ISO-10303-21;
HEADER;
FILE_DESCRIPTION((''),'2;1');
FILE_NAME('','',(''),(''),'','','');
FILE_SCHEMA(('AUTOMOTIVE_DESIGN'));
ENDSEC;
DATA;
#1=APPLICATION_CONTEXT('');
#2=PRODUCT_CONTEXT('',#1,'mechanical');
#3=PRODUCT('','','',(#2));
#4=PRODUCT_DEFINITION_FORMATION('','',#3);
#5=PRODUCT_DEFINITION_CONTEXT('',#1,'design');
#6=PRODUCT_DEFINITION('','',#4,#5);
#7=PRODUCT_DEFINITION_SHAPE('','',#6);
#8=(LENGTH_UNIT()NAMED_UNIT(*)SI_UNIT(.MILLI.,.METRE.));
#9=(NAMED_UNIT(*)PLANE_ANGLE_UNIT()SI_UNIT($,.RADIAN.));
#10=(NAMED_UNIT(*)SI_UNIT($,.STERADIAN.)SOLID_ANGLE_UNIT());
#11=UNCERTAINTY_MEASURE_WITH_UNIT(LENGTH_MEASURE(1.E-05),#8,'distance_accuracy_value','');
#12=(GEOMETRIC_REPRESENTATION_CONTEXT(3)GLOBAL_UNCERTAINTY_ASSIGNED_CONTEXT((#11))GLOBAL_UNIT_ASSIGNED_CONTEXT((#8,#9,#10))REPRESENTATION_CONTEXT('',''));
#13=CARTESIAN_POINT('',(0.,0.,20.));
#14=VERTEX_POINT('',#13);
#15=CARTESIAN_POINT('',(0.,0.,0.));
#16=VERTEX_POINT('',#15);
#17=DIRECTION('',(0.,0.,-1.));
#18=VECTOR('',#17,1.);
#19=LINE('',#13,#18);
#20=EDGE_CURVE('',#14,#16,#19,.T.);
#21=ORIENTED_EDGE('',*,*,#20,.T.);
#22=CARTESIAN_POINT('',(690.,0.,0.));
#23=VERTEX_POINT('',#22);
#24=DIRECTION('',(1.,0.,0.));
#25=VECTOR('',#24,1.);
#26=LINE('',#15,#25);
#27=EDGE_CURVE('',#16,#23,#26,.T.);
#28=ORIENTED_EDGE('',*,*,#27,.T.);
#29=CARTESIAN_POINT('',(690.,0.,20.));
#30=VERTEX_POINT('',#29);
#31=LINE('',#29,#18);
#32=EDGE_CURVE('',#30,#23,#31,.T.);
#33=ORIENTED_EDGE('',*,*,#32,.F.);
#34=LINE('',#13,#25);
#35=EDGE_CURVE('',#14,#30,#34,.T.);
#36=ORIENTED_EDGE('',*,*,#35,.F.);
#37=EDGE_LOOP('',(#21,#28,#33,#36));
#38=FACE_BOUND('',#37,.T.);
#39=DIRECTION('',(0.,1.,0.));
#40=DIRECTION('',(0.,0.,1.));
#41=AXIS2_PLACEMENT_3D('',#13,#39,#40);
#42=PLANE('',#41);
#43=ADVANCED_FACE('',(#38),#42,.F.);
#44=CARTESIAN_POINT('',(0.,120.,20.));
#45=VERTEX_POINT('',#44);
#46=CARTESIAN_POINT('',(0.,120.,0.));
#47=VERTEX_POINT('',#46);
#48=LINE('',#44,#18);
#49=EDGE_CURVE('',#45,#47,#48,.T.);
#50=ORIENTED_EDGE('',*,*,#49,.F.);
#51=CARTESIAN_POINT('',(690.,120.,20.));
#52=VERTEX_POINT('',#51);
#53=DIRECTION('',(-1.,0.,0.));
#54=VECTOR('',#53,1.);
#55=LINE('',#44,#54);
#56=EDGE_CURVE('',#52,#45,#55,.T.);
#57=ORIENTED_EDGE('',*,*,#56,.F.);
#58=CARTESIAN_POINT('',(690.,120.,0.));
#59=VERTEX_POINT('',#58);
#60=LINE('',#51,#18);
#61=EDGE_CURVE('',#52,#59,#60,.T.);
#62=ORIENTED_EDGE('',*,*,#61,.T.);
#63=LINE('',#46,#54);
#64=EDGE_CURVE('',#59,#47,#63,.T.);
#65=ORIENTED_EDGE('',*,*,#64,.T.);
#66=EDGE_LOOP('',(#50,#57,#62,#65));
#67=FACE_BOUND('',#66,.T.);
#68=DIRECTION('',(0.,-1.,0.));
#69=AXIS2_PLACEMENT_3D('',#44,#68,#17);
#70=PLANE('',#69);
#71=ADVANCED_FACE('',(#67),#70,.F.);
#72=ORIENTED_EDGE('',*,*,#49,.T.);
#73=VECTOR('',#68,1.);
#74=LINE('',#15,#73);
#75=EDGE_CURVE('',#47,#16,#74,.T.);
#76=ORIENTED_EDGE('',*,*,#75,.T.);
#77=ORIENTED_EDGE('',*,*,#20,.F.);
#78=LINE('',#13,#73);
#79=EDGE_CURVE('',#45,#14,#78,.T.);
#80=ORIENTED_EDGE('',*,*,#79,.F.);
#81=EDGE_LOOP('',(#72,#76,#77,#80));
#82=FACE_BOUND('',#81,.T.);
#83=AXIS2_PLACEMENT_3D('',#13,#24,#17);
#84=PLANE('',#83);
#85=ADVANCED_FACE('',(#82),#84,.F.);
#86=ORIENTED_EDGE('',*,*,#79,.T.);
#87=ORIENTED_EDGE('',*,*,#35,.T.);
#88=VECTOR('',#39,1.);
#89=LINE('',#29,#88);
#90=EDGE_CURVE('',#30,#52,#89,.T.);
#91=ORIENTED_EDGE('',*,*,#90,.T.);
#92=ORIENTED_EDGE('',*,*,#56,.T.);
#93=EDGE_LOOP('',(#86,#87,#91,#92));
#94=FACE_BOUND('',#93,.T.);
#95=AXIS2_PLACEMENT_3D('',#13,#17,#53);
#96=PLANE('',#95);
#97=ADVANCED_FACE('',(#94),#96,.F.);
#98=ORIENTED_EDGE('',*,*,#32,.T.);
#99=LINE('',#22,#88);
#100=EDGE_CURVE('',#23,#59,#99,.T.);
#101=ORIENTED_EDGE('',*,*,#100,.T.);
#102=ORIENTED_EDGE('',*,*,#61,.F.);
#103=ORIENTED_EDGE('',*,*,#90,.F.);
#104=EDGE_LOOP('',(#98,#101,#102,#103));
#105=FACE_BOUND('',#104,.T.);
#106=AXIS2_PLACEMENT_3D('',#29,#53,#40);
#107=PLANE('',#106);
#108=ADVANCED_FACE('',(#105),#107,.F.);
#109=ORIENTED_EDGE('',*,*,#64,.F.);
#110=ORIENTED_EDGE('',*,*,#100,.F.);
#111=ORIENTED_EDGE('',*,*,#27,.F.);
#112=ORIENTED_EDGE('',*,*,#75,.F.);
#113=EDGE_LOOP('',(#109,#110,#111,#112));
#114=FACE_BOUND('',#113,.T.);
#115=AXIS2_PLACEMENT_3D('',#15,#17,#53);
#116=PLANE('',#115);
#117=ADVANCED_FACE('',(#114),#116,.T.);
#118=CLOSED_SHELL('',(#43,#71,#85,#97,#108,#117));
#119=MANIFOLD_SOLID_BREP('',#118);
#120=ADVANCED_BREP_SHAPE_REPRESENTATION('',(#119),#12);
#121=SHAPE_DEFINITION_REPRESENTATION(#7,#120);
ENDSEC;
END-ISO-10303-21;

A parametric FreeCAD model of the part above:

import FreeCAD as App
import Part
import Sketcher

V = App.Vector
Q = App.Units.Quantity

doc = App.newDocument("Part")
params = doc.addObject("Spreadsheet::Sheet", "Params")
for row, (alias, value) in enumerate([
    ("sketch1_width", "690 mm"),
    ("sketch1_height", "120 mm"),
    ("pad1_length", "20 mm"),
], start=1):
    params.set(f"A{row}", alias)
    params.set(f"B{row}", "=" + value)
    params.setAlias(f"B{row}", alias)

body = doc.addObject("PartDesign::Body", "Body")

sketch1 = body.newObject("Sketcher::SketchObject", "Sketch")
sketch1.AttachmentSupport = (doc.getObject("XY_Plane"), [""])
sketch1.MapMode = "FlatFace"
sketch1.addGeometry([
    Part.LineSegment(V(0, 120, 0), V(0, 0, 0)),
    Part.LineSegment(V(0, 0, 0), V(690, 0, 0)),
    Part.LineSegment(V(690, 0, 0), V(690, 120, 0)),
    Part.LineSegment(V(690, 120, 0), V(0, 120, 0)),
], False)
sketch1.addConstraint([
    Sketcher.Constraint("Coincident", 0, 2, 1, 1),
    Sketcher.Constraint("Coincident", 1, 2, 2, 1),
    Sketcher.Constraint("Coincident", 2, 2, 3, 1),
    Sketcher.Constraint("Coincident", 3, 2, 0, 1),
    Sketcher.Constraint("Vertical", 0),
    Sketcher.Constraint("Horizontal", 1),
    Sketcher.Constraint("Vertical", 2),
    Sketcher.Constraint("Horizontal", 3),
    Sketcher.Constraint("Coincident", 0, 2, -1, 1),
    Sketcher.Constraint("DistanceX", 1, 1, 1, 2, Q("690 mm")),
    Sketcher.Constraint("DistanceY", 0, 2, 0, 1, Q("120 mm")),
])
sketch1.setExpression("Constraints[9]", "Params.sketch1_width")
sketch1.setExpression("Constraints[10]", "Params.sketch1_height")
pad1 = body.newObject("PartDesign::Pad", "Pad")
pad1.Profile = sketch1
pad1.setExpression("Length", "Params.pad1_length")

doc.recompute()
